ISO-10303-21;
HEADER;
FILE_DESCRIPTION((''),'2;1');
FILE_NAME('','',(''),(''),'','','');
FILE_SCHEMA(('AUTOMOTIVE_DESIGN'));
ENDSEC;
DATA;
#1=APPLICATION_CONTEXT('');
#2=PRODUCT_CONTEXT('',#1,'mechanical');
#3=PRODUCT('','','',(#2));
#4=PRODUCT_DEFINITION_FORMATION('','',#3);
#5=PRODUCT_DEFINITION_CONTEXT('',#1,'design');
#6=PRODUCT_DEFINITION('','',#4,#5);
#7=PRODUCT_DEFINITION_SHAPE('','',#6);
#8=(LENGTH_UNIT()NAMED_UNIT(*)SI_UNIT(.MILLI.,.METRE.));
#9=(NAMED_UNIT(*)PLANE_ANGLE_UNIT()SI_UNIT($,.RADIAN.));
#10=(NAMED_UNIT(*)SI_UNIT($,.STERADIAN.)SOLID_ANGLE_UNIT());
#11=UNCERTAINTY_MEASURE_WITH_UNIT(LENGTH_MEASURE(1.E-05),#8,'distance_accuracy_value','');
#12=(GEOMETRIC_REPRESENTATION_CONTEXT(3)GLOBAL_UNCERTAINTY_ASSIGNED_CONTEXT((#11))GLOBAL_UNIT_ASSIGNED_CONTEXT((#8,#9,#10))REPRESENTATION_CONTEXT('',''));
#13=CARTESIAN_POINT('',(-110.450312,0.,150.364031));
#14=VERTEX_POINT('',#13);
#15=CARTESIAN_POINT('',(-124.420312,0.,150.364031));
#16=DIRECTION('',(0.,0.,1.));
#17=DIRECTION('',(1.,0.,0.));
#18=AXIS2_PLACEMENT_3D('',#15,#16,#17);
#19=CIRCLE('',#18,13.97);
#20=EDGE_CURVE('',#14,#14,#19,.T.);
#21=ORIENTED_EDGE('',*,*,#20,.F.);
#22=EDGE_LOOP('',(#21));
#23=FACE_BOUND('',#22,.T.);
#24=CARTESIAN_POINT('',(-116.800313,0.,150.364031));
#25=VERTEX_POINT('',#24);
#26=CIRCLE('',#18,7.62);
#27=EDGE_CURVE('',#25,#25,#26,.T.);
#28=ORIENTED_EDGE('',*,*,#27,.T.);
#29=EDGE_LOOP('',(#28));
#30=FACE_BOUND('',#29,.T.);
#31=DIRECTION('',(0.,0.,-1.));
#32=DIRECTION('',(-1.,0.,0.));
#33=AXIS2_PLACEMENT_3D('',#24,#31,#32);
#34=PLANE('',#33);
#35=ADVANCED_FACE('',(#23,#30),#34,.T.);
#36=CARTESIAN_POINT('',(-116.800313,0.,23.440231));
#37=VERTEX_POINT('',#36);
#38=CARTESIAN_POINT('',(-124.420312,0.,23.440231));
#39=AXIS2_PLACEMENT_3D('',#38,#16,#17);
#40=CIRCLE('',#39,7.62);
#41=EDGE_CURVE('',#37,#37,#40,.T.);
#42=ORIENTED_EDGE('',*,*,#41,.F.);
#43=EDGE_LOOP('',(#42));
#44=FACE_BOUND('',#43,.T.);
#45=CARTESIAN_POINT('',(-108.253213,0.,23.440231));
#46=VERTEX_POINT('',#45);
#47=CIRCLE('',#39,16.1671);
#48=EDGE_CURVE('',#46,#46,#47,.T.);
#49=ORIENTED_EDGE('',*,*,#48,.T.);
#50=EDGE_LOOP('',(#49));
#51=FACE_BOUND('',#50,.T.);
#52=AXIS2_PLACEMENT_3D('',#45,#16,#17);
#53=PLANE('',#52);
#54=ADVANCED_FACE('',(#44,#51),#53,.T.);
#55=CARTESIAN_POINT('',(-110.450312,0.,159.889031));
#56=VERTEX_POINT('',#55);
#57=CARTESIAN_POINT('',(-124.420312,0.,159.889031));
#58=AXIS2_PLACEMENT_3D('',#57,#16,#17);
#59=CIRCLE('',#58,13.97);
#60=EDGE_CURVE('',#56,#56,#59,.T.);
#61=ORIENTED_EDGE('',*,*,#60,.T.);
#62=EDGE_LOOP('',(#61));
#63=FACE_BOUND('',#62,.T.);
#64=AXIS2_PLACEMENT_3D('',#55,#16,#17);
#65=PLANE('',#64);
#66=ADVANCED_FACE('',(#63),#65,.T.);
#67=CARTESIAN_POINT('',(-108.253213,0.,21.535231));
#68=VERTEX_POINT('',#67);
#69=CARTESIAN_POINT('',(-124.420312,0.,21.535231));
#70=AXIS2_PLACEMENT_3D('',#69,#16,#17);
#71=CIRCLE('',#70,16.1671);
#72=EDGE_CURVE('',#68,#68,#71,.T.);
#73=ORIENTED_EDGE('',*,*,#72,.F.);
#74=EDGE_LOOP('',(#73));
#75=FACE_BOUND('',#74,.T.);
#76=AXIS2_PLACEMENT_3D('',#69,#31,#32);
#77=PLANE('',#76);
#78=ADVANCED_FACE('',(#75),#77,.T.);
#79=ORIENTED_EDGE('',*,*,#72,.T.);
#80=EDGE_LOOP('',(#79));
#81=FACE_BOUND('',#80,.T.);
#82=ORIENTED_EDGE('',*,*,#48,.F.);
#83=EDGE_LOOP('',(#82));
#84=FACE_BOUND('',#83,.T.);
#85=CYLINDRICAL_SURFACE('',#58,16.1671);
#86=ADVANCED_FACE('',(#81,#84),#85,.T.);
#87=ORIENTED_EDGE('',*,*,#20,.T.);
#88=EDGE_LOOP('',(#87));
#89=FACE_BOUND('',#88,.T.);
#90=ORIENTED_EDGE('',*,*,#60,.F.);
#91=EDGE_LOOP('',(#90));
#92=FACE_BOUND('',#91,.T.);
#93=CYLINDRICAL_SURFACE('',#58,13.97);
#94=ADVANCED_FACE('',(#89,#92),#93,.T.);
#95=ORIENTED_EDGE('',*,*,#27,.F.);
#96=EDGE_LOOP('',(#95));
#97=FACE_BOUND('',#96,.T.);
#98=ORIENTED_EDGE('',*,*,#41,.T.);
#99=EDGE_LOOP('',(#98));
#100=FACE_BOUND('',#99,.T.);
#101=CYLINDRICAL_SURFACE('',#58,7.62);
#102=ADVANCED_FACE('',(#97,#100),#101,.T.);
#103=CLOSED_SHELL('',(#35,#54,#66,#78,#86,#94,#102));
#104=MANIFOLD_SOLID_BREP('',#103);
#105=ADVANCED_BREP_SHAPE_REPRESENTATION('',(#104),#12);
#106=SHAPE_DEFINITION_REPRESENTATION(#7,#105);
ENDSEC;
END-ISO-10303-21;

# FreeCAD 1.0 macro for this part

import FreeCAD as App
import Part
import Sketcher
Q = App.Units.Quantity

doc = App.newDocument("Part")
body = doc.addObject("PartDesign::Body", "Body")

# Sketch on XZ plane
sketch1 = body.newObject("Sketcher::SketchObject", "Sketch")
sketch1.AttachmentSupport = (doc.getObject("XZ_Plane"), [""])
sketch1.MapMode = "FlatFace"
sketch1.addGeometry([
    Part.LineSegment(App.Vector(-108.253213, 21.535231, 0), App.Vector(-124.420312, 21.535231, 0)),  # 0
    Part.LineSegment(App.Vector(-124.420312, 21.535231, 0), App.Vector(-124.420312, 159.889031, 0)),  # 1
    Part.LineSegment(App.Vector(-124.420312, 159.889031, 0), App.Vector(-110.450312, 159.889031, 0)),  # 2
    Part.LineSegment(App.Vector(-110.450312, 159.889031, 0), App.Vector(-110.450312, 150.364031, 0)),  # 3
    Part.LineSegment(App.Vector(-110.450312, 150.364031, 0), App.Vector(-116.800313, 150.364031, 0)),  # 4
    Part.LineSegment(App.Vector(-116.800313, 150.364031, 0), App.Vector(-116.800313, 23.440231, 0)),  # 5
    Part.LineSegment(App.Vector(-116.800313, 23.440231, 0), App.Vector(-108.253213, 23.440231, 0)),  # 6
    Part.LineSegment(App.Vector(-108.253213, 23.440231, 0), App.Vector(-108.253213, 21.535231, 0)),  # 7
], False)
sketch1.addGeometry(Part.LineSegment(App.Vector(-124.420312, 159.889031, 0), App.Vector(-124.420312, 21.535231, 0)), True)  # axis
sketch1.addConstraint([
    Sketcher.Constraint("Coincident", 0, 2, 1, 1),
    Sketcher.Constraint("Coincident", 1, 2, 2, 1),
    Sketcher.Constraint("Coincident", 2, 2, 3, 1),
    Sketcher.Constraint("Coincident", 3, 2, 4, 1),
    Sketcher.Constraint("Coincident", 4, 2, 5, 1),
    Sketcher.Constraint("Coincident", 5, 2, 6, 1),
    Sketcher.Constraint("Coincident", 6, 2, 7, 1),
    Sketcher.Constraint("Coincident", 7, 2, 0, 1),
    Sketcher.Constraint("Horizontal", 0),
    Sketcher.Constraint("Vertical", 1),
    Sketcher.Constraint("Horizontal", 2),
    Sketcher.Constraint("Vertical", 3),
    Sketcher.Constraint("Horizontal", 4),
    Sketcher.Constraint("Vertical", 5),
    Sketcher.Constraint("Horizontal", 6),
    Sketcher.Constraint("Vertical", 7),
    Sketcher.Constraint("Vertical", 8),
    Sketcher.Constraint("Coincident", 8, 1, 1, 2),
    Sketcher.Constraint("Horizontal", 7, 2, 8, 2),
    Sketcher.Constraint("DistanceX", 2, 1, 2, 2, Q("0.55 in")),
    Sketcher.Constraint("DistanceX", 4, 2, 4, 1, Q("0.25 in")),
    Sketcher.Constraint("DistanceY", 1, 1, 1, 2, Q("5.447 in")),
    Sketcher.Constraint("DistanceY", 3, 2, 3, 1, Q("0.375 in")),
    Sketcher.Constraint("DistanceY", 5, 2, 5, 1, Q("4.997 in")),
    Sketcher.Constraint("DistanceX", 0, 2, 0, 1, Q("0.6365 in")),
    Sketcher.Constraint("DistanceY", -1, 1, 0, 2, 21.535231),
    Sketcher.Constraint("DistanceX", 0, 2, -1, 1, 124.420312),
])
revolution = body.newObject("PartDesign::Revolution", "Revolution")
revolution.Profile = sketch1
revolution.ReferenceAxis = (sketch1, ["Axis0"])
revolution.Angle = 360

doc.recompute()
